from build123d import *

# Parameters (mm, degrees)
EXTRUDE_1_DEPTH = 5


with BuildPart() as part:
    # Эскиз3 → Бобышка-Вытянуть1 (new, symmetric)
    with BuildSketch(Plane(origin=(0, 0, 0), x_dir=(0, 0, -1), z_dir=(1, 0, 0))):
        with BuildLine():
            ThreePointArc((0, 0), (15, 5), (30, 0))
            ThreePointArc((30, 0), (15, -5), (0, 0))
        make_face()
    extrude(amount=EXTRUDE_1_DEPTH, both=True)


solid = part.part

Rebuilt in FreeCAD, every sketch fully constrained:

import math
import FreeCAD as App
import Part
import Sketcher

doc = App.newDocument("Part")
params = doc.addObject("Spreadsheet::Sheet", "Params")
for row, (alias, value) in enumerate([
    ("sketch1_radius", "25 mm"),
    ("pad1_length", "10 mm"),
], start=1):
    params.set(f"A{row}", alias)
    params.set(f"B{row}", "=" + value)
    params.setAlias(f"B{row}", alias)

body = doc.addObject("PartDesign::Body", "Body")

# Sketch on YZ plane
sketch1 = body.newObject("Sketcher::SketchObject", "Sketch")
sketch1.AttachmentSupport = (doc.getObject("YZ_Plane"), [""])
sketch1.MapMode = "FlatFace"
sketch1.addGeometry(Part.ArcOfCircle(Part.Circle(App.Vector(-20, -15, 0), App.Vector(0, 0, 1), 25), math.radians(-36.869898), math.radians(36.869898)), False)
sketch1.addGeometry(Part.ArcOfCircle(Part.Circle(App.Vector(20, -15, 0), App.Vector(0, 0, 1), 25), math.radians(143.130102), math.radians(216.869898)), False)
sketch1.addConstraint(Sketcher.Constraint("Coincident", 0, 1, 1, 2))
sketch1.addConstraint(Sketcher.Constraint("Coincident", 1, 1, 0, 2))
sketch1.addConstraint(Sketcher.Constraint("Coincident", 1, 1, -1, 1))
sketch1.addConstraint(Sketcher.Constraint("Equal", 0, 1))
sketch1.addConstraint(Sketcher.Constraint("PointOnObject", 0, 1, -2))
sketch1.addConstraint(Sketcher.Constraint("Radius", 0, 25.0))
sketch1.addConstraint(Sketcher.Constraint("DistanceX", 0, 3, -1, 1, 20.0))
sketch1.setExpression("Constraints[5]", "Params.sketch1_radius")
pad1 = body.newObject("PartDesign::Pad", "Pad")
pad1.Profile = sketch1
pad1.setExpression("Length", "Params.pad1_length")
pad1.Midplane = True

doc.recompute()
